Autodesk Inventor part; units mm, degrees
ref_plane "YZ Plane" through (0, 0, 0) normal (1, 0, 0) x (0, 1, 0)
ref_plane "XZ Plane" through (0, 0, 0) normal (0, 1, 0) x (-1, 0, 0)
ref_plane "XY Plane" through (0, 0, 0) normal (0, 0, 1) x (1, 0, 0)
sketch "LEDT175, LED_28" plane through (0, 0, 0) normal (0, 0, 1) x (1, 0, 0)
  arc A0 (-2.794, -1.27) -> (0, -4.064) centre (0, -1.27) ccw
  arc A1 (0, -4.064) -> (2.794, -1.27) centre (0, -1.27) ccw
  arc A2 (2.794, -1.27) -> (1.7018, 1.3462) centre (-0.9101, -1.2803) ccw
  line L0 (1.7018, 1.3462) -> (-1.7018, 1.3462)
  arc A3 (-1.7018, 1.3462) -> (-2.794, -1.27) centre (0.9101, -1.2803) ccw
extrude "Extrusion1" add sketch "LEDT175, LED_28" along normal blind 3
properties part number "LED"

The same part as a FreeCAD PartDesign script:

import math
import FreeCAD as App
import Part
import Sketcher

V = App.Vector
Q = App.Units.Quantity

doc = App.newDocument("Part")
body = doc.addObject("PartDesign::Body", "Body")

# Sketch on XY plane
sketch1 = body.newObject("Sketcher::SketchObject", "Sketch")
sketch1.AttachmentSupport = (doc.getObject("XY_Plane"), [""])
sketch1.MapMode = "FlatFace"
sketch1.addGeometry([
    Part.ArcOfCircle(Part.Circle(V(0.9101, -1.2803, 0), V(0, 0, 1), 3.704123), math.radians(134.840311), math.radians(179.840678)),
    Part.ArcOfCircle(Part.Circle(V(0, -1.27, 0), V(0, 0, 1), 2.794), math.radians(180), math.radians(360)),
    Part.ArcOfCircle(Part.Circle(V(-0.9101, -1.2803, 0), V(0, 0, 1), 3.704114), math.radians(0.159322), math.radians(45.159689)),
    Part.LineSegment(V(1.7018, 1.3462, 0), V(-1.7018, 1.3462, 0)),
], False)
sketch1.addConstraint([
    Sketcher.Constraint("Coincident", 0, 2, 1, 1),
    Sketcher.Constraint("Coincident", 1, 2, 2, 1),
    Sketcher.Constraint("Coincident", 2, 2, 3, 1),
    Sketcher.Constraint("Coincident", 3, 2, 0, 1),
    Sketcher.Constraint("Horizontal", 3),
    Sketcher.Constraint("Equal", 0, 2),
    Sketcher.Constraint("Symmetric", 0, 3, 2, 3, -2),
    Sketcher.Constraint("PointOnObject", 1, 3, -2),
    Sketcher.Constraint("Horizontal", 1, 3, 0, 2),
    Sketcher.Constraint("Radius", 1, Q("0.11 in")),
    Sketcher.Constraint("DistanceX", 3, 2, 3, 1, Q("0.134 in")),
    Sketcher.Constraint("DistanceY", 1, 3, -1, 1, Q("0.05 in")),
    Sketcher.Constraint("Radius", 0, Q("3.7041 mm")),
    Sketcher.Constraint("DistanceY", -1, 1, 2, 2, Q("0.053 in")),
])
pad1 = body.newObject("PartDesign::Pad", "Pad")
pad1.Profile = sketch1
pad1.Length = Q("0.1181102 in")

doc.recompute()
